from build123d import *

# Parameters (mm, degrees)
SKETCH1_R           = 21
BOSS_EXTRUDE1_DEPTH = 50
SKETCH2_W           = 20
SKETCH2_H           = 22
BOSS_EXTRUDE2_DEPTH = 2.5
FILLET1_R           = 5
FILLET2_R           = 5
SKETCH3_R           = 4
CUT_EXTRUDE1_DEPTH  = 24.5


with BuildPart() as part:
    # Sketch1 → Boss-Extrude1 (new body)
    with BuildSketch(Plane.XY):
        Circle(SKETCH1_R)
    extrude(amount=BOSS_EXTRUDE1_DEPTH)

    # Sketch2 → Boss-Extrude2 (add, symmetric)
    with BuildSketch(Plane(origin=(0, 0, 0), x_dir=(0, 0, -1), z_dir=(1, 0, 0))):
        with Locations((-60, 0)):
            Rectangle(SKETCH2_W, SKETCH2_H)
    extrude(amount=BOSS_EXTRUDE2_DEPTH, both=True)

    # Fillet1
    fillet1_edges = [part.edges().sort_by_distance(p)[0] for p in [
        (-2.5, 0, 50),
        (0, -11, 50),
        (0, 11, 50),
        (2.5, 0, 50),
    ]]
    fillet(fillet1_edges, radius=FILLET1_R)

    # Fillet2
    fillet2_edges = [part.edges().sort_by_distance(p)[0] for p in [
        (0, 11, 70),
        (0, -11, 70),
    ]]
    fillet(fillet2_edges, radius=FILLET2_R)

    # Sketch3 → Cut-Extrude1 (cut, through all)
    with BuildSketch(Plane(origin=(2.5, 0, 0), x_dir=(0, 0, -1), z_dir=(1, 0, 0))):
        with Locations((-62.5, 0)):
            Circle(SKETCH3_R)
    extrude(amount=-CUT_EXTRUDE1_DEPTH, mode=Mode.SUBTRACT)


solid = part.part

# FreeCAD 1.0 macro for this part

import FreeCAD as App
import Part
import Sketcher
from FreeCAD import Vector
Q = App.Units.Quantity


def edges_at(feature, points):
    """Names of the edges that pass closest to the given points."""
    edges = feature.Shape.Edges
    near = lambda p: min(range(len(edges)), key=lambda i: edges[i].distToShape(Part.Vertex(*p))[0])
    return sorted({f"Edge{near(p) + 1}" for p in points})


def add_polygon(sketch, points):
    """Adds a closed chain of lines whose ends are joined by coincident constraints."""
    first, n = sketch.GeometryCount, len(points)
    for a, b in zip(points, points[1:] + points[:1]):
        sketch.addGeometry(Part.LineSegment(App.Vector(*a, 0), App.Vector(*b, 0)), False)
    for i in range(n):
        sketch.addConstraint(Sketcher.Constraint("Coincident", first + i, 2, first + (i + 1) % n, 1))

doc = App.newDocument("Part")
body = doc.addObject("PartDesign::Body", "Body")

# Sketch on XY plane
sketch1 = body.newObject("Sketcher::SketchObject", "Sketch")
sketch1.AttachmentSupport = (doc.getObject("XY_Plane"), [""])
sketch1.MapMode = "FlatFace"
sketch1.addGeometry(Part.Circle(Vector(0, 0, 0), Vector(0, 0, 1), 21), False)
sketch1.addConstraint([
    Sketcher.Constraint("Coincident", 0, 3, -1, 1),
    Sketcher.Constraint("Diameter", 0, Q("42 mm")),
])
pad1 = body.newObject("PartDesign::Pad", "Pad")
pad1.Profile = sketch1
pad1.Length = 50

# Sketch on YZ plane
sketch2 = body.newObject("Sketcher::SketchObject", "Sketch001")
sketch2.AttachmentSupport = (doc.getObject("YZ_Plane"), [""])
sketch2.MapMode = "FlatFace"
add_polygon(sketch2, [(11, 70), (-11, 70), (-11, 50), (11, 50)])  # lines 0-3
sketch2.addConstraint([
    Sketcher.Constraint("Horizontal", 0),
    Sketcher.Constraint("Vertical", 1),
    Sketcher.Constraint("Horizontal", 2),
    Sketcher.Constraint("Vertical", 3),
    Sketcher.Constraint("DistanceX", 0, 2, 0, 1, Q("22 mm")),
    Sketcher.Constraint("DistanceY", 1, 2, 1, 1, Q("20 mm")),
    Sketcher.Constraint("DistanceX", 0, 2, -1, 1, Q("11 mm")),
    Sketcher.Constraint("DistanceY", -1, 1, 0, 2, Q("70 mm")),
])
pad2 = body.newObject("PartDesign::Pad", "Pad001")
pad2.Profile = sketch2
pad2.Length = 5
pad2.Midplane = True
doc.recompute()

fillet = body.newObject("PartDesign::Fillet", "Fillet")
fillet.Base = (pad2, edges_at(pad2, [
    (-2.5, 0, 50),
    (0, -11, 50),
    (0, 11, 50),
    (2.5, 0, 50),
]))
fillet.Radius = 5
doc.recompute()

fillet2 = body.newObject("PartDesign::Fillet", "Fillet001")
fillet2.Base = (fillet, edges_at(fillet, [(0, 11, 70), (0, -11, 70)]))
fillet2.Radius = 5

# Sketch on YZ plane
sketch3 = body.newObject("Sketcher::SketchObject", "Sketch002")
sketch3.AttachmentSupport = (doc.getObject("YZ_Plane"), [""])
sketch3.MapMode = "FlatFace"
sketch3.AttachmentOffset = App.Placement(Vector(0, 0, 2.5), App.Rotation())
sketch3.addGeometry(Part.Circle(Vector(0, 62.5, 0), Vector(0, 0, 1), 4), False)
sketch3.addConstraint([
    Sketcher.Constraint("PointOnObject", 0, 3, -2),
    Sketcher.Constraint("Diameter", 0, Q("8 mm")),
    Sketcher.Constraint("DistanceY", -1, 1, 0, 3, Q("62.5 mm")),
])
pocket1 = body.newObject("PartDesign::Pocket", "Pocket")
pocket1.Profile = sketch3
pocket1.Type = "ThroughAll"

doc.recompute()
